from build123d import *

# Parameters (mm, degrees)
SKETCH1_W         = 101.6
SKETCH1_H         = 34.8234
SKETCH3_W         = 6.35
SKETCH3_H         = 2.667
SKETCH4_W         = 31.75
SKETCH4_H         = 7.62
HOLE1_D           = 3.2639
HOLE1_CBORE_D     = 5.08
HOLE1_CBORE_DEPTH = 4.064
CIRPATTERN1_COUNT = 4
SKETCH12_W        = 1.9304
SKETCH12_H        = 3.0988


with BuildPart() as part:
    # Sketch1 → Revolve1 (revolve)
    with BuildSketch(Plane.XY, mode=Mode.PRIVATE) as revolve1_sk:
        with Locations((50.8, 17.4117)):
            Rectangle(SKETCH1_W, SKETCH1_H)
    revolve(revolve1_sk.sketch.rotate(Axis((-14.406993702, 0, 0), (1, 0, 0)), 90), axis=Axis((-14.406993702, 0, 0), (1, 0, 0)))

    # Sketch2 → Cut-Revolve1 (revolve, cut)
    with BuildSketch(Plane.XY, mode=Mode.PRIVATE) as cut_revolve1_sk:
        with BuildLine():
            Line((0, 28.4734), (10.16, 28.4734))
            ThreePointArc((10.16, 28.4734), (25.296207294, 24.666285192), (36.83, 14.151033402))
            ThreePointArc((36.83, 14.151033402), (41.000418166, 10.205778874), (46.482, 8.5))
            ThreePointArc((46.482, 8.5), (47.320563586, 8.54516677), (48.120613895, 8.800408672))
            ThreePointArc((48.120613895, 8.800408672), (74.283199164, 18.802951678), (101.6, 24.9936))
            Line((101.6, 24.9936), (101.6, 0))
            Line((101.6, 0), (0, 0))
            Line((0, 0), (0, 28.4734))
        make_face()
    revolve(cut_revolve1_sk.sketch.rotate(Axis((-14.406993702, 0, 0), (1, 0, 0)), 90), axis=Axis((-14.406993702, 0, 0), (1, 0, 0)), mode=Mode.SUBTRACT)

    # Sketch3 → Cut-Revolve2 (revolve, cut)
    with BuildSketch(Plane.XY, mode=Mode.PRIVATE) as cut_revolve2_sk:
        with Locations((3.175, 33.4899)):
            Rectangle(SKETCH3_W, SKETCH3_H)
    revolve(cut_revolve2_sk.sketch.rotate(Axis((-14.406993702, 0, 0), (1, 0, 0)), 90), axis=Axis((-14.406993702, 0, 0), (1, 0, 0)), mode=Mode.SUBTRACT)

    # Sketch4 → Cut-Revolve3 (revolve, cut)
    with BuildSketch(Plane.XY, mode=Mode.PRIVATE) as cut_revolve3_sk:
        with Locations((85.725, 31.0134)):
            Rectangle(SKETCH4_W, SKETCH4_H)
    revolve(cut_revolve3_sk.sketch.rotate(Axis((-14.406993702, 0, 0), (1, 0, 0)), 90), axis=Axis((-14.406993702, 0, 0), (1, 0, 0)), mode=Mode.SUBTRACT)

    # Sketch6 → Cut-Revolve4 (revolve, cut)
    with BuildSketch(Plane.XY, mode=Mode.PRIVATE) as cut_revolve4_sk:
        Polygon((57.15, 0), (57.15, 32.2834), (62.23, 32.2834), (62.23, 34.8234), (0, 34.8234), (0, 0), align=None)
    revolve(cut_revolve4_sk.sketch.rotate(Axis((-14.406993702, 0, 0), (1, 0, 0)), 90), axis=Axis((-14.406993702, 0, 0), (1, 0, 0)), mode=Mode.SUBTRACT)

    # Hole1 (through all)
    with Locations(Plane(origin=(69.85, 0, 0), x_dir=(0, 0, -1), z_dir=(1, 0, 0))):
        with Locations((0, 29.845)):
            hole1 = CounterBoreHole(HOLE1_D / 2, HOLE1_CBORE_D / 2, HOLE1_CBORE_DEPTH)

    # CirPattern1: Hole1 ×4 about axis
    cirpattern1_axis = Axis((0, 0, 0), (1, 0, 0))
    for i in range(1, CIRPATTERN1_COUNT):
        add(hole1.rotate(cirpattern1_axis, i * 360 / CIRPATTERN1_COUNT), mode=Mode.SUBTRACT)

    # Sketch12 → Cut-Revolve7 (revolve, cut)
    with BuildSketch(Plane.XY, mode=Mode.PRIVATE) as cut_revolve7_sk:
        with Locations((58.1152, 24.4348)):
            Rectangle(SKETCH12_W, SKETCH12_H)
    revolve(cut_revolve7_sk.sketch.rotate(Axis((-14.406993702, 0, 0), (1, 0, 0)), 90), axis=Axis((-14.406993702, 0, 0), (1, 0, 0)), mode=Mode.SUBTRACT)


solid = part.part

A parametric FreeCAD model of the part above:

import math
import FreeCAD as App
import Part
import Sketcher
from FreeCAD import Vector
Q = App.Units.Quantity


def add_polygon(sketch, points):
    """Adds a closed chain of lines whose ends are joined by coincident constraints."""
    first, n = sketch.GeometryCount, len(points)
    for a, b in zip(points, points[1:] + points[:1]):
        sketch.addGeometry(Part.LineSegment(App.Vector(*a, 0), App.Vector(*b, 0)), False)
    for i in range(n):
        sketch.addConstraint(Sketcher.Constraint("Coincident", first + i, 2, first + (i + 1) % n, 1))

doc = App.newDocument("Part")
body = doc.addObject("PartDesign::Body", "Body")

# Sketch on XY plane
sketch1 = body.newObject("Sketcher::SketchObject", "Sketch")
sketch1.AttachmentSupport = (doc.getObject("XY_Plane"), [""])
sketch1.MapMode = "FlatFace"
add_polygon(sketch1, [(0, 35), (0, 0), (102, 0), (102, 35)])  # lines 0-3
sketch1.addConstraint(Sketcher.Constraint("Vertical", 0))
sketch1.addConstraint(Sketcher.Constraint("Horizontal", 1))
sketch1.addConstraint(Sketcher.Constraint("Vertical", 2))
sketch1.addConstraint(Sketcher.Constraint("Horizontal", 3))
sketch1.addConstraint(Sketcher.Constraint("Coincident", 0, 2, -1, 1))
sketch1.addConstraint(Sketcher.Constraint("DistanceX", 1, 1, 1, 2, Q("4 in")))
sketch1.addConstraint(Sketcher.Constraint("DistanceY", 0, 2, 0, 1, Q("1.371 in")))
revolution = body.newObject("PartDesign::Revolution", "Revolution")
revolution.Profile = sketch1
revolution.ReferenceAxis = (sketch1, ["H_Axis"])
revolution.Angle = 360

# Sketch on XY plane
sketch2 = body.newObject("Sketcher::SketchObject", "Sketch001")
sketch2.AttachmentSupport = (doc.getObject("XY_Plane"), [""])
sketch2.MapMode = "FlatFace"
sketch2.addGeometry(Part.LineSegment(Vector(10.2, 28.5, 0), Vector(0, 28.5, 0)), False)
sketch2.addGeometry(Part.LineSegment(Vector(0, 28.5, 0), Vector(0, 0, 0)), False)
sketch2.addGeometry(Part.LineSegment(Vector(0, 0, 0), Vector(101.6, 0, 0)), False)
sketch2.addGeometry(Part.LineSegment(Vector(101.6, 0, 0), Vector(101.6, 25, 0)), False)
sketch2.addGeometry(Part.ArcOfCircle(Part.Circle(Vector(131.4, -169.7, 0), Vector(0, 0, 1), 197), math.radians(98.69), math.radians(115)), False)
sketch2.addGeometry(Part.ArcOfCircle(Part.Circle(Vector(46.7, 11.8, 0), Vector(0, 0, 1), 3.3), math.radians(-94), math.radians(-65)), False)
sketch2.addGeometry(Part.ArcOfCircle(Part.Circle(Vector(47.4, 21.2, 0), Vector(0, 0, 1), 12.7), math.radians(-146), math.radians(-94)), False)
sketch2.addGeometry(Part.ArcOfCircle(Part.Circle(Vector(10.2, -3.5, 0), Vector(0, 0, 1), 32), math.radians(34), math.radians(90)), False)
sketch2.addConstraint(Sketcher.Constraint("Coincident", 0, 2, 1, 1))
sketch2.addConstraint(Sketcher.Constraint("Coincident", 1, 2, 2, 1))
sketch2.addConstraint(Sketcher.Constraint("Coincident", 2, 2, 3, 1))
sketch2.addConstraint(Sketcher.Constraint("Coincident", 3, 2, 4, 1))
sketch2.addConstraint(Sketcher.Constraint("Tangent", 4, 2, 5, 2))
sketch2.addConstraint(Sketcher.Constraint("Tangent", 5, 1, 6, 2))
sketch2.addConstraint(Sketcher.Constraint("Tangent", 6, 1, 7, 1))
sketch2.addConstraint(Sketcher.Constraint("Tangent", 7, 2, 0, 1))
sketch2.addConstraint(Sketcher.Constraint("Horizontal", 0))
sketch2.addConstraint(Sketcher.Constraint("Vertical", 1))
sketch2.addConstraint(Sketcher.Constraint("Horizontal", 2))
sketch2.addConstraint(Sketcher.Constraint("Vertical", 3))
sketch2.addConstraint(Sketcher.Constraint("Coincident", 1, 2, -1, 1))
sketch2.addConstraint(Sketcher.Constraint("Radius", 6, Q("0.5 in")))
sketch2.addConstraint(Sketcher.Constraint("DistanceX", 2, 1, 2, 2, Q("4 in")))
sketch2.addConstraint(Sketcher.Constraint("Radius", 5, Q("0.13 in")))
sketch2.addConstraint(Sketcher.Constraint("DistanceX", 0, 2, 0, 1, Q("0.4 in")))
sketch2.addConstraint(Sketcher.Constraint("DistanceY", 1, 2, 1, 1, Q("1.121 in")))
sketch2.addConstraint(Sketcher.Constraint("DistanceY", 3, 1, 3, 2, Q("0.984 in")))
sketch2.addConstraint(Sketcher.Constraint("DistanceX", -1, 1, 5, 1, Q("1.83 in")))
sketch2.addConstraint(Sketcher.Constraint("DistanceX", -1, 1, 6, 1, Q("1.45 in")))
sketch2.addConstraint(Sketcher.Constraint("Radius", 4, 196.979582))
sketch2.addConstraint(Sketcher.Constraint("Radius", 7, 31.992586))
groove = body.newObject("PartDesign::Groove", "Groove")
groove.Profile = sketch2
groove.ReferenceAxis = (sketch2, ["H_Axis"])
groove.Angle = 360

# Sketch on XY plane
sketch3 = body.newObject("Sketcher::SketchObject", "Sketch002")
sketch3.AttachmentSupport = (doc.getObject("XY_Plane"), [""])
sketch3.MapMode = "FlatFace"
add_polygon(sketch3, [(0, 34.8), (0, 32.2), (6.3, 32.2), (6.3, 34.8)])  # lines 0-3
sketch3.addConstraint(Sketcher.Constraint("Vertical", 0))
sketch3.addConstraint(Sketcher.Constraint("Horizontal", 1))
sketch3.addConstraint(Sketcher.Constraint("Vertical", 2))
sketch3.addConstraint(Sketcher.Constraint("Horizontal", 3))
sketch3.addConstraint(Sketcher.Constraint("PointOnObject", 0, 2, -2))
sketch3.addConstraint(Sketcher.Constraint("DistanceX", 1, 1, 1, 2, Q("0.25 in")))
sketch3.addConstraint(Sketcher.Constraint("DistanceY", 0, 2, 0, 1, Q("0.105 in")))
sketch3.addConstraint(Sketcher.Constraint("DistanceY", -1, 1, 0, 2, Q("1.266 in")))
groove2 = body.newObject("PartDesign::Groove", "Groove001")
groove2.Profile = sketch3
groove2.ReferenceAxis = (sketch3, ["H_Axis"])
groove2.Angle = 360

# Sketch on XY plane
sketch4 = body.newObject("Sketcher::SketchObject", "Sketch003")
sketch4.AttachmentSupport = (doc.getObject("XY_Plane"), [""])
sketch4.MapMode = "FlatFace"
add_polygon(sketch4, [(70, 35), (70, 27), (102, 27), (102, 35)])  # lines 0-3
sketch4.addConstraint(Sketcher.Constraint("Vertical", 0))
sketch4.addConstraint(Sketcher.Constraint("Horizontal", 1))
sketch4.addConstraint(Sketcher.Constraint("Vertical", 2))
sketch4.addConstraint(Sketcher.Constraint("Horizontal", 3))
sketch4.addConstraint(Sketcher.Constraint("DistanceY", 0, 2, 0, 1, Q("0.3 in")))
sketch4.addConstraint(Sketcher.Constraint("DistanceX", -1, 1, 1, 2, Q("4 in")))
sketch4.addConstraint(Sketcher.Constraint("DistanceX", 1, 1, 1, 2, Q("1.25 in")))
sketch4.addConstraint(Sketcher.Constraint("DistanceY", -1, 1, 0, 2, Q("1.071 in")))
groove3 = body.newObject("PartDesign::Groove", "Groove002")
groove3.Profile = sketch4
groove3.ReferenceAxis = (sketch4, ["H_Axis"])
groove3.Angle = 360

# Sketch on XY plane
sketch5 = body.newObject("Sketcher::SketchObject", "Sketch004")
sketch5.AttachmentSupport = (doc.getObject("XY_Plane"), [""])
sketch5.MapMode = "FlatFace"
add_polygon(sketch5, [(57.1, 0), (57.1, 32.3), (62.2, 32.3), (62.2, 34.8), (0, 34.8), (0, 0)])  # lines 0-5
sketch5.addConstraint(Sketcher.Constraint("Vertical", 0))
sketch5.addConstraint(Sketcher.Constraint("Horizontal", 1))
sketch5.addConstraint(Sketcher.Constraint("Vertical", 2))
sketch5.addConstraint(Sketcher.Constraint("Horizontal", 3))
sketch5.addConstraint(Sketcher.Constraint("Vertical", 4))
sketch5.addConstraint(Sketcher.Constraint("Horizontal", 5))
sketch5.addConstraint(Sketcher.Constraint("Coincident", 4, 2, -1, 1))
sketch5.addConstraint(Sketcher.Constraint("DistanceX", 1, 1, 1, 2, Q("0.2 in")))
sketch5.addConstraint(Sketcher.Constraint("DistanceY", 2, 1, 2, 2, Q("0.1 in")))
sketch5.addConstraint(Sketcher.Constraint("DistanceX", 3, 2, 3, 1, Q("2.45 in")))
sketch5.addConstraint(Sketcher.Constraint("DistanceY", 0, 1, 0, 2, Q("1.271 in")))
groove4 = body.newObject("PartDesign::Groove", "Groove003")
groove4.Profile = sketch5
groove4.ReferenceAxis = (sketch5, ["H_Axis"])
groove4.Angle = 360

# Sketch on YZ plane
sketch6 = body.newObject("Sketcher::SketchObject", "Sketch005")
sketch6.AttachmentSupport = (doc.getObject("YZ_Plane"), [""])
sketch6.MapMode = "FlatFace"
sketch6.AttachmentOffset = App.Placement(Vector(0, 0, 2.75 * 25.4), App.Rotation())
sketch6.addGeometry(Part.Circle(Vector(29.8, 0, 0), Vector(0, 0, 1), 1.6), False)
sketch6.addConstraint(Sketcher.Constraint("PointOnObject", 0, 3, -1))
sketch6.addConstraint(Sketcher.Constraint("Diameter", 0, Q("0.1285 in")))
sketch6.addConstraint(Sketcher.Constraint("DistanceX", -1, 1, 0, 3, Q("1.175 in")))
doc.recompute()
hole = body.newObject("PartDesign::Hole", "Hole")
hole.Profile = sketch6
hole.ThreadType = "None"
hole.Diameter = Q("0.1285 in")
hole.DepthType = "ThroughAll"
hole.HoleCutType = "Counterbore"
hole.HoleCutDiameter = Q("0.2 in")
hole.HoleCutDepth = Q("0.16 in")
doc.recompute()

polarpattern = body.newObject("PartDesign::PolarPattern", "PolarPattern")
polarpattern.Originals = [hole]
polarpattern.Axis = (doc.getObject("X_Axis"), [""])
polarpattern.Angle = 360
polarpattern.Occurrences = 4
body.Tip = polarpattern

# Sketch on XY plane
sketch7 = body.newObject("Sketcher::SketchObject", "Sketch006")
sketch7.AttachmentSupport = (doc.getObject("XY_Plane"), [""])
sketch7.MapMode = "FlatFace"
add_polygon(sketch7, [(57.1, 26), (57.1, 22.9), (59.1, 22.9), (59.1, 26)])  # lines 0-3
sketch7.addConstraint(Sketcher.Constraint("Vertical", 0))
sketch7.addConstraint(Sketcher.Constraint("Horizontal", 1))
sketch7.addConstraint(Sketcher.Constraint("Vertical", 2))
sketch7.addConstraint(Sketcher.Constraint("Horizontal", 3))
sketch7.addConstraint(Sketcher.Constraint("DistanceX", 1, 1, 1, 2, Q("0.076 in")))
sketch7.addConstraint(Sketcher.Constraint("DistanceY", 0, 2, 0, 1, Q("0.122 in")))
sketch7.addConstraint(Sketcher.Constraint("DistanceX", -1, 1, 0, 2, Q("2.25 in")))
sketch7.addConstraint(Sketcher.Constraint("DistanceY", -1, 1, 0, 2, Q("0.901 in")))
groove5 = body.newObject("PartDesign::Groove", "Groove004")
groove5.Profile = sketch7
groove5.ReferenceAxis = (sketch7, ["H_Axis"])
groove5.Angle = 360

doc.recompute()
